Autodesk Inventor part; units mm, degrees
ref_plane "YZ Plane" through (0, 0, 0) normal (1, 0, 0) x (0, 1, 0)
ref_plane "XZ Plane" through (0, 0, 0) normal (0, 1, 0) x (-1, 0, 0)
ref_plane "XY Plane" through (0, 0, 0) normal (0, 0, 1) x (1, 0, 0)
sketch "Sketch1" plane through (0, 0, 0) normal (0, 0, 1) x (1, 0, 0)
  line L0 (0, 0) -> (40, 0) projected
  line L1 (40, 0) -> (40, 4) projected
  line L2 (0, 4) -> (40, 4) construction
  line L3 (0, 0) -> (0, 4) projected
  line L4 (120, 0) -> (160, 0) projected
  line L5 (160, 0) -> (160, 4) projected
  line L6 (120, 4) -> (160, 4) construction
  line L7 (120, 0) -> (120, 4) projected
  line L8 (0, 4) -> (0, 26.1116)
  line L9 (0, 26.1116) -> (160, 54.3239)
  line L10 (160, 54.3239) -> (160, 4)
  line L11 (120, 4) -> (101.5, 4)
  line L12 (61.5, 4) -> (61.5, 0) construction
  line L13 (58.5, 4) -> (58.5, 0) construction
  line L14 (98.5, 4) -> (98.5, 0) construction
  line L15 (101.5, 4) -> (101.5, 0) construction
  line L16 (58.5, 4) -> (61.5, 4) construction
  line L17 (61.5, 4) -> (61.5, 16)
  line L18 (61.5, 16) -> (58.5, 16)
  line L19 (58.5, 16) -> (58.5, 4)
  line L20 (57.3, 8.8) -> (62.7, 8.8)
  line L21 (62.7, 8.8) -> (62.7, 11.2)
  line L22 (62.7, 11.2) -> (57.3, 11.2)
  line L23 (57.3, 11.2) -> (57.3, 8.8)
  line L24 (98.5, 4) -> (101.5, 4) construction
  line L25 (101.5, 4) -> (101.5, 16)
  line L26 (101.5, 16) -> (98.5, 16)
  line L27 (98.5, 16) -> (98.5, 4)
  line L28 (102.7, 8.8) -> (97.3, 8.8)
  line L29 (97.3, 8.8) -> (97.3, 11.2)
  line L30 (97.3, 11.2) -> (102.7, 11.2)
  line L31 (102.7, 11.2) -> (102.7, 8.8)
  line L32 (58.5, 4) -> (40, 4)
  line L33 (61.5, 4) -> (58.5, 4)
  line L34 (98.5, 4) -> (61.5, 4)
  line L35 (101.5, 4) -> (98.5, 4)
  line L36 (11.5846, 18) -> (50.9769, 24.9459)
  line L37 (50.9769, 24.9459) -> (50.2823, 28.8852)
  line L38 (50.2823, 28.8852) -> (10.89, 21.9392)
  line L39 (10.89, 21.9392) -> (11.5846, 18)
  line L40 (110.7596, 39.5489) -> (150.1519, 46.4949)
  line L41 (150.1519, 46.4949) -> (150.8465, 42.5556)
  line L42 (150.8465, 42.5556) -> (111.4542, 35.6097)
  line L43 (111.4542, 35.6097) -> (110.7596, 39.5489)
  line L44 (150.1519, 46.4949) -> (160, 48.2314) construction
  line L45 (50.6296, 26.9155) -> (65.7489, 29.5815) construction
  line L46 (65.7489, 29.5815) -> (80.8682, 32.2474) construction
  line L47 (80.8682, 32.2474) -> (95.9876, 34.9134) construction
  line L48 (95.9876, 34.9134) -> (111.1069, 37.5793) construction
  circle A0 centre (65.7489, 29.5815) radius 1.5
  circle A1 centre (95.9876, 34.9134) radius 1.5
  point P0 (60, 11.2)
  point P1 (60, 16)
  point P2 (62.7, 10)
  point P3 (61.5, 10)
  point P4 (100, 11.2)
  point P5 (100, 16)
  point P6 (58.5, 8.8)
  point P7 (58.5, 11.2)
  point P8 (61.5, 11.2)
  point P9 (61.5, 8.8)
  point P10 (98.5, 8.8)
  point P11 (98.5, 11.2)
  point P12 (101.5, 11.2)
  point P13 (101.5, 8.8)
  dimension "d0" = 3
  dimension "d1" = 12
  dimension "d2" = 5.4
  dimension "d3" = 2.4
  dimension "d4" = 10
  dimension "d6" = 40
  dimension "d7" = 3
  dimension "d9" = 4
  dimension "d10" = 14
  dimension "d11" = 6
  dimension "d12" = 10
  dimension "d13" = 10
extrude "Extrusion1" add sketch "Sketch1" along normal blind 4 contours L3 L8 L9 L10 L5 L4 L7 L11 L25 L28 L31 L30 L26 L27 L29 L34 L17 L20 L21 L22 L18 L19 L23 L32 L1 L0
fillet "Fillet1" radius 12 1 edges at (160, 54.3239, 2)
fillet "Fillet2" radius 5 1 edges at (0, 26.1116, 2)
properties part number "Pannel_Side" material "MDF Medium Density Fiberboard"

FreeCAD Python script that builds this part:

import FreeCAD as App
import Part
import Sketcher
from FreeCAD import Vector
Q = App.Units.Quantity


def edges_at(feature, points):
    """Names of the edges that pass closest to the given points."""
    edges = feature.Shape.Edges
    near = lambda p: min(range(len(edges)), key=lambda i: edges[i].distToShape(Part.Vertex(*p))[0])
    return sorted({f"Edge{near(p) + 1}" for p in points})


def add_polygon(sketch, points):
    """Adds a closed chain of lines whose ends are joined by coincident constraints."""
    first, n = sketch.GeometryCount, len(points)
    for a, b in zip(points, points[1:] + points[:1]):
        sketch.addGeometry(Part.LineSegment(App.Vector(*a, 0), App.Vector(*b, 0)), False)
    for i in range(n):
        sketch.addConstraint(Sketcher.Constraint("Coincident", first + i, 2, first + (i + 1) % n, 1))

doc = App.newDocument("Part")
body = doc.addObject("PartDesign::Body", "Body")

sketch1 = body.newObject("Sketcher::SketchObject", "Sketch")
sketch1.AttachmentSupport = (doc.getObject("XY_Plane"), [""])
sketch1.MapMode = "FlatFace"
add_polygon(sketch1, [(0, 26.1), (0, 0), (40, 0), (40, 4), (58.5, 4), (58.5, 8.8), (57.3, 8.8), (57.3, 11.2), (58.5, 11.2), (58.5, 16), (61.5, 16), (61.5, 11.2), (62.7, 11.2), (62.7, 8.8), (61.5, 8.8), (61.5, 4), (98.5, 4), (98.5, 8.8), (97.3, 8.8), (97.3, 11.2), (98.5, 11.2), (98.5, 16), (101.5, 16), (101.5, 11.2), (102.7, 11.2), (102.7, 8.8), (101.5, 8.8), (101.5, 4), (120, 4), (120, 0), (160, 0), (160, 54.3)])
add_polygon(sketch1, [(51, 24.9), (11.6, 18), (10.9, 21.9), (50.3, 28.9)])
sketch1.addGeometry(Part.Circle(Vector(65.7, 29.6, 0), Vector(0, 0, 1), 1.5), False)
sketch1.addGeometry(Part.Circle(Vector(96, 34.9, 0), Vector(0, 0, 1), 1.5), False)
add_polygon(sketch1, [(111.5, 35.6), (110.8, 39.5), (150.2, 46.5), (150.8, 42.6)])
sketch1.addConstraint([
    Sketcher.Constraint("Vertical", 0),
    Sketcher.Constraint("Horizontal", 1),
    Sketcher.Constraint("Vertical", 2),
    Sketcher.Constraint("Horizontal", 3),
    Sketcher.Constraint("Vertical", 4),
    Sketcher.Constraint("Horizontal", 5),
    Sketcher.Constraint("Vertical", 6),
    Sketcher.Constraint("Horizontal", 7),
    Sketcher.Constraint("Vertical", 8),
    Sketcher.Constraint("Horizontal", 9),
    Sketcher.Constraint("Vertical", 10),
    Sketcher.Constraint("Horizontal", 11),
    Sketcher.Constraint("Vertical", 12),
    Sketcher.Constraint("Horizontal", 13),
    Sketcher.Constraint("Vertical", 14),
    Sketcher.Constraint("Horizontal", 15),
    Sketcher.Constraint("Vertical", 16),
    Sketcher.Constraint("Horizontal", 17),
    Sketcher.Constraint("Vertical", 18),
    Sketcher.Constraint("Horizontal", 19),
    Sketcher.Constraint("Vertical", 20),
    Sketcher.Constraint("Horizontal", 21),
    Sketcher.Constraint("Vertical", 22),
    Sketcher.Constraint("Horizontal", 23),
    Sketcher.Constraint("Vertical", 24),
    Sketcher.Constraint("Horizontal", 25),
    Sketcher.Constraint("Vertical", 26),
    Sketcher.Constraint("Horizontal", 27),
    Sketcher.Constraint("Vertical", 28),
    Sketcher.Constraint("Horizontal", 29),
    Sketcher.Constraint("Vertical", 30),
    Sketcher.Constraint("Coincident", 0, 2, -1, 1),
    Sketcher.Constraint("Equal", 36, 37),
    Sketcher.Constraint("PointOnObject", 28, 2, -1),
    Sketcher.Constraint("Parallel", 31, 32),
    Sketcher.Constraint("Perpendicular", 32, 33),
    Sketcher.Constraint("Perpendicular", 33, 34),
    Sketcher.Constraint("Perpendicular", 34, 35),
    Sketcher.Constraint("Parallel", 35, 38),
    Sketcher.Constraint("Perpendicular", 38, 39),
    Sketcher.Constraint("Perpendicular", 39, 40),
    Sketcher.Constraint("Perpendicular", 40, 41),
    Sketcher.Constraint("Horizontal", 7, 2, 10, 2),
    Sketcher.Constraint("Horizontal", 5, 2, 12, 2),
    Sketcher.Constraint("Horizontal", 3, 2, 14, 2),
    Sketcher.Constraint("Horizontal", 13, 2, 16, 2),
    Sketcher.Constraint("Horizontal", 11, 2, 18, 2),
    Sketcher.Constraint("Horizontal", 9, 2, 20, 2),
    Sketcher.Constraint("Horizontal", 19, 2, 22, 2),
    Sketcher.Constraint("Horizontal", 17, 2, 24, 2),
    Sketcher.Constraint("Horizontal", 15, 2, 26, 2),
    Sketcher.Constraint("Vertical", 4, 2, 7, 2),
    Sketcher.Constraint("Vertical", 10, 2, 13, 2),
    Sketcher.Constraint("Vertical", 16, 2, 19, 2),
    Sketcher.Constraint("Vertical", 22, 2, 25, 2),
    Sketcher.Constraint("Equal", 7, 11),
    Sketcher.Constraint("Equal", 13, 17),
    Sketcher.Constraint("Equal", 9, 21),
    Sketcher.Constraint("Equal", 19, 23),
    Sketcher.Constraint("Equal", 3, 27),
    Sketcher.Constraint("Equal", 1, 29),
    Sketcher.Constraint("Equal", 4, 8),
    Sketcher.Constraint("Equal", 35, 38),
    Sketcher.Constraint("Equal", 34, 39),
    Sketcher.Constraint("Diameter", 36, Q("3 mm")),
    Sketcher.Constraint("DistanceX", 1, 1, 1, 2, Q("40 mm")),
    Sketcher.Constraint("DistanceX", 9, 1, 9, 2, Q("3 mm")),
    Sketcher.Constraint("DistanceY", 2, 1, 2, 2, Q("4 mm")),
    Sketcher.Constraint("Angle", 34, Q("10 deg")),
    Sketcher.Constraint("Distance", 32, Q("40 mm")),
    Sketcher.Constraint("Distance", 33, Q("4 mm")),
    Sketcher.Constraint("DistanceY", 6, 1, 6, 2, Q("2.4 mm")),
    Sketcher.Constraint("DistanceY", 3, 2, 8, 2, Q("12 mm")),
    Sketcher.Constraint("DistanceY", 2, 2, 32, 2, Q("14 mm")),
    Sketcher.Constraint("DistanceX", 6, 2, 11, 2, Q("5.4 mm")),
    Sketcher.Constraint("DistanceX", 15, 1, 15, 2, Q("37 mm")),
    Sketcher.Constraint("DistanceX", 3, 1, 3, 2, Q("18.5 mm")),
    Sketcher.Constraint("DistanceY", 30, 1, 30, 2, Q("54.324 mm")),
    Sketcher.Constraint("DistanceX", -1, 1, 33, 2, Q("10.89 mm")),
    Sketcher.Constraint("DistanceX", -1, 1, 36, 3, Q("65.749 mm")),
    Sketcher.Constraint("DistanceY", -1, 1, 38, 2, Q("39.549 mm")),
    Sketcher.Constraint("DistanceX", -1, 1, 39, 2, Q("150.152 mm")),
    Sketcher.Constraint("DistanceY", 36, 3, 37, 3, Q("5.332 mm")),
    Sketcher.Constraint("DistanceX", 37, 3, 38, 2, Q("14.772 mm")),
    Sketcher.Constraint("DistanceY", -1, 1, 36, 3, Q("29.5815 mm")),
])
pad1 = body.newObject("PartDesign::Pad", "Pad")
pad1.Profile = sketch1
pad1.Length = 4
doc.recompute()

fillet = body.newObject("PartDesign::Fillet", "Fillet")
fillet.Base = (pad1, edges_at(pad1, [(160, 54.324, 2)]))
fillet.Radius = 12
doc.recompute()

fillet2 = body.newObject("PartDesign::Fillet", "Fillet001")
fillet2.Base = (fillet, edges_at(fillet, [(0, 26.112, 2)]))
fillet2.Radius = 5

doc.recompute()
